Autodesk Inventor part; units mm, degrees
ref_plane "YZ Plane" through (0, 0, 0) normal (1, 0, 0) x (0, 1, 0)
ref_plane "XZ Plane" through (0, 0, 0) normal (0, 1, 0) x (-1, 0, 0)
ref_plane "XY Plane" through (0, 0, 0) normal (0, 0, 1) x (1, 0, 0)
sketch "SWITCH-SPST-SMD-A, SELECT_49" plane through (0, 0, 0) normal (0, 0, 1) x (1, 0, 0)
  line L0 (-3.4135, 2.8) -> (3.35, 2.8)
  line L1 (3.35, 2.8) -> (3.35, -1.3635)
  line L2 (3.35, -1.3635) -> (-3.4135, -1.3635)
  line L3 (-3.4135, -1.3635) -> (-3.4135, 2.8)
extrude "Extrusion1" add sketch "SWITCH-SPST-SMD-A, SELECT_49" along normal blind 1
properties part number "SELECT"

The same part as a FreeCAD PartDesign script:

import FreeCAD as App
import Part
import Sketcher
Q = App.Units.Quantity


def add_polygon(sketch, points):
    """Adds a closed chain of lines whose ends are joined by coincident constraints."""
    first, n = sketch.GeometryCount, len(points)
    for a, b in zip(points, points[1:] + points[:1]):
        sketch.addGeometry(Part.LineSegment(App.Vector(*a, 0), App.Vector(*b, 0)), False)
    for i in range(n):
        sketch.addConstraint(Sketcher.Constraint("Coincident", first + i, 2, first + (i + 1) % n, 1))

doc = App.newDocument("Part")
body = doc.addObject("PartDesign::Body", "Body")

# Sketch on XY plane
sketch1 = body.newObject("Sketcher::SketchObject", "Sketch")
sketch1.AttachmentSupport = (doc.getObject("XY_Plane"), [""])
sketch1.MapMode = "FlatFace"
add_polygon(sketch1, [(3.35, 2.8), (-3.4135, 2.8), (-3.4135, -1.3635), (3.35, -1.3635)])  # lines 0-3
sketch1.addConstraint(Sketcher.Constraint("Horizontal", 0))
sketch1.addConstraint(Sketcher.Constraint("Vertical", 1))
sketch1.addConstraint(Sketcher.Constraint("Horizontal", 2))
sketch1.addConstraint(Sketcher.Constraint("Vertical", 3))
sketch1.addConstraint(Sketcher.Constraint("DistanceY", -1, 1, 0, 2, Q("2.8 mm")))
sketch1.addConstraint(Sketcher.Constraint("DistanceX", -1, 1, 2, 2, Q("3.35 mm")))
sketch1.addConstraint(Sketcher.Constraint("DistanceX", 0, 2, 0, 1, Q("6.7635 mm")))
sketch1.addConstraint(Sketcher.Constraint("DistanceY", 1, 2, 1, 1, Q("4.1635 mm")))
pad1 = body.newObject("PartDesign::Pad", "Pad")
pad1.Profile = sketch1
pad1.Length = 1

doc.recompute()
